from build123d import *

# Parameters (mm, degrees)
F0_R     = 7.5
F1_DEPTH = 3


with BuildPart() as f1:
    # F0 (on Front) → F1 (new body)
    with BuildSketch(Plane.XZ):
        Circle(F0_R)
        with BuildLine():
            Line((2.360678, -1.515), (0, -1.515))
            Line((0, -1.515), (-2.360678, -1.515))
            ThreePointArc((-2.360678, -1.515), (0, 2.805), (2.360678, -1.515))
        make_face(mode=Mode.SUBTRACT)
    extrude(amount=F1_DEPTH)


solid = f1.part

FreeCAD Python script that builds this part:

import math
import FreeCAD as App
import Part
import Sketcher

doc = App.newDocument("Part")
body = doc.addObject("PartDesign::Body", "Body")

# Sketch on XZ plane
sketch1 = body.newObject("Sketcher::SketchObject", "Sketch")
sketch1.AttachmentSupport = (doc.getObject("XZ_Plane"), [""])
sketch1.MapMode = "FlatFace"
sketch1.addGeometry([
    Part.Circle(App.Vector(0, 0, 0), App.Vector(0, 0, 1), 7.5),
    Part.ArcOfCircle(Part.Circle(App.Vector(0, 0, 0), App.Vector(0, 0, 1), 2.8), math.radians(-33), math.radians(213)),
    Part.LineSegment(App.Vector(2.4, -1.5, 0), App.Vector(-2.4, -1.5, 0)),
], False)
sketch1.addConstraint([
    Sketcher.Constraint("Coincident", 1, 1, 2, 1),
    Sketcher.Constraint("Coincident", 2, 2, 1, 2),
    Sketcher.Constraint("Horizontal", 2),
    Sketcher.Constraint("Coincident", 0, 3, -1, 1),
    Sketcher.Constraint("Coincident", 1, 3, -1, 1),
    Sketcher.Constraint("Diameter", 0, 15.0),
    Sketcher.Constraint("Radius", 1, 2.805),
    Sketcher.Constraint("DistanceY", 1, 1, -1, 1, 1.515),
])
pad1 = body.newObject("PartDesign::Pad", "Pad")
pad1.Profile = sketch1
pad1.Length = 3

doc.recompute()
